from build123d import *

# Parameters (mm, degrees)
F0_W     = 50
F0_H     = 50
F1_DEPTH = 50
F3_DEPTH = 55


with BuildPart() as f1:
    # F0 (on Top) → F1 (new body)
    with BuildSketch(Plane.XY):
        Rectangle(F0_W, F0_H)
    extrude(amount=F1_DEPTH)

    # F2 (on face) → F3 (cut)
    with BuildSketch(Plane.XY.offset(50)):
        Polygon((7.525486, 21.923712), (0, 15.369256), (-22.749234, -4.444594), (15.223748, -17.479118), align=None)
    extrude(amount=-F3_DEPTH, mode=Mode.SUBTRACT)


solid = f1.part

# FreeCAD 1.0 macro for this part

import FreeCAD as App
import Part
import Sketcher
from FreeCAD import Vector

doc = App.newDocument("Part")
params = doc.addObject("Spreadsheet::Sheet", "Params")
for row, (alias, value) in enumerate([
    ("sketch1_width", "50 mm"),
    ("pad1_length", "50 mm"),
    ("pocket1_length", "55 mm"),
], start=1):
    params.set(f"A{row}", alias)
    params.set(f"B{row}", "=" + value)
    params.setAlias(f"B{row}", alias)

body = doc.addObject("PartDesign::Body", "Body")

sketch1 = doc.addObject("Sketcher::SketchObject", "Sketch")
body.addObject(sketch1)
sketch1.AttachmentSupport = (doc.XY_Plane, [""])
sketch1.MapMode = "FlatFace"
sketch1.addGeometry(Part.LineSegment(Vector(-25, 25, 0), Vector(-25, -25, 0)), False)
sketch1.addGeometry(Part.LineSegment(Vector(-25, -25, 0), Vector(25, -25, 0)), False)
sketch1.addGeometry(Part.LineSegment(Vector(25, -25, 0), Vector(25, 25, 0)), False)
sketch1.addGeometry(Part.LineSegment(Vector(25, 25, 0), Vector(-25, 25, 0)), False)
sketch1.addConstraint(Sketcher.Constraint("Coincident", 0, 2, 1, 1))
sketch1.addConstraint(Sketcher.Constraint("Coincident", 1, 2, 2, 1))
sketch1.addConstraint(Sketcher.Constraint("Coincident", 2, 2, 3, 1))
sketch1.addConstraint(Sketcher.Constraint("Coincident", 3, 2, 0, 1))
sketch1.addConstraint(Sketcher.Constraint("Vertical", 0))
sketch1.addConstraint(Sketcher.Constraint("Horizontal", 1))
sketch1.addConstraint(Sketcher.Constraint("Vertical", 2))
sketch1.addConstraint(Sketcher.Constraint("Horizontal", 3))
sketch1.addConstraint(Sketcher.Constraint("Symmetric", 0, 2, 2, 2, -1, 1))
sketch1.addConstraint(Sketcher.Constraint("Equal", 3, 0))
sketch1.addConstraint(Sketcher.Constraint("DistanceX", 1, 1, 1, 2, 50.0))
sketch1.setExpression("Constraints[10]", "Params.sketch1_width")
pad1 = doc.addObject("PartDesign::Pad", "Pad")
body.addObject(pad1)
pad1.Profile = sketch1
pad1.setExpression("Length", "Params.pad1_length")

sketch2 = doc.addObject("Sketcher::SketchObject", "Sketch001")
body.addObject(sketch2)
sketch2.AttachmentSupport = (doc.XY_Plane, [""])
sketch2.MapMode = "FlatFace"
sketch2.AttachmentOffset = App.Placement(Vector(0, 0, 50), App.Rotation())
sketch2.addGeometry(Part.LineSegment(Vector(7.525486, 21.923712, 0), Vector(0, 15.369256, 0)), False)
sketch2.addGeometry(Part.LineSegment(Vector(0, 15.369256, 0), Vector(-22.749234, -4.444594, 0)), False)
sketch2.addGeometry(Part.LineSegment(Vector(-22.749234, -4.444594, 0), Vector(15.223748, -17.479118, 0)), False)
sketch2.addGeometry(Part.LineSegment(Vector(15.223748, -17.479118, 0), Vector(7.525486, 21.923712, 0)), False)
sketch2.addConstraint(Sketcher.Constraint("Coincident", 0, 2, 1, 1))
sketch2.addConstraint(Sketcher.Constraint("Coincident", 1, 2, 2, 1))
sketch2.addConstraint(Sketcher.Constraint("Coincident", 2, 2, 3, 1))
sketch2.addConstraint(Sketcher.Constraint("Coincident", 3, 2, 0, 1))
sketch2.addConstraint(Sketcher.Constraint("PointOnObject", 0, 2, -2))
sketch2.addConstraint(Sketcher.Constraint("Parallel", 0, 1))
sketch2.addConstraint(Sketcher.Constraint("Equal", 2, 3))
sketch2.addConstraint(Sketcher.Constraint("Distance", 0, 9.979671))
sketch2.addConstraint(Sketcher.Constraint("DistanceY", -1, 1, 3, 2, 21.923712))
sketch2.addConstraint(Sketcher.Constraint("DistanceY", 1, 2, 0, 2, 19.81385))
sketch2.addConstraint(Sketcher.Constraint("DistanceX", 1, 2, 3, 2, 30.27472))
sketch2.addConstraint(Sketcher.Constraint("DistanceY", 2, 2, 3, 2, 39.40283))
pocket1 = doc.addObject("PartDesign::Pocket", "Pocket")
body.addObject(pocket1)
pocket1.Profile = sketch2
pocket1.setExpression("Length", "Params.pocket1_length")

doc.recompute()
